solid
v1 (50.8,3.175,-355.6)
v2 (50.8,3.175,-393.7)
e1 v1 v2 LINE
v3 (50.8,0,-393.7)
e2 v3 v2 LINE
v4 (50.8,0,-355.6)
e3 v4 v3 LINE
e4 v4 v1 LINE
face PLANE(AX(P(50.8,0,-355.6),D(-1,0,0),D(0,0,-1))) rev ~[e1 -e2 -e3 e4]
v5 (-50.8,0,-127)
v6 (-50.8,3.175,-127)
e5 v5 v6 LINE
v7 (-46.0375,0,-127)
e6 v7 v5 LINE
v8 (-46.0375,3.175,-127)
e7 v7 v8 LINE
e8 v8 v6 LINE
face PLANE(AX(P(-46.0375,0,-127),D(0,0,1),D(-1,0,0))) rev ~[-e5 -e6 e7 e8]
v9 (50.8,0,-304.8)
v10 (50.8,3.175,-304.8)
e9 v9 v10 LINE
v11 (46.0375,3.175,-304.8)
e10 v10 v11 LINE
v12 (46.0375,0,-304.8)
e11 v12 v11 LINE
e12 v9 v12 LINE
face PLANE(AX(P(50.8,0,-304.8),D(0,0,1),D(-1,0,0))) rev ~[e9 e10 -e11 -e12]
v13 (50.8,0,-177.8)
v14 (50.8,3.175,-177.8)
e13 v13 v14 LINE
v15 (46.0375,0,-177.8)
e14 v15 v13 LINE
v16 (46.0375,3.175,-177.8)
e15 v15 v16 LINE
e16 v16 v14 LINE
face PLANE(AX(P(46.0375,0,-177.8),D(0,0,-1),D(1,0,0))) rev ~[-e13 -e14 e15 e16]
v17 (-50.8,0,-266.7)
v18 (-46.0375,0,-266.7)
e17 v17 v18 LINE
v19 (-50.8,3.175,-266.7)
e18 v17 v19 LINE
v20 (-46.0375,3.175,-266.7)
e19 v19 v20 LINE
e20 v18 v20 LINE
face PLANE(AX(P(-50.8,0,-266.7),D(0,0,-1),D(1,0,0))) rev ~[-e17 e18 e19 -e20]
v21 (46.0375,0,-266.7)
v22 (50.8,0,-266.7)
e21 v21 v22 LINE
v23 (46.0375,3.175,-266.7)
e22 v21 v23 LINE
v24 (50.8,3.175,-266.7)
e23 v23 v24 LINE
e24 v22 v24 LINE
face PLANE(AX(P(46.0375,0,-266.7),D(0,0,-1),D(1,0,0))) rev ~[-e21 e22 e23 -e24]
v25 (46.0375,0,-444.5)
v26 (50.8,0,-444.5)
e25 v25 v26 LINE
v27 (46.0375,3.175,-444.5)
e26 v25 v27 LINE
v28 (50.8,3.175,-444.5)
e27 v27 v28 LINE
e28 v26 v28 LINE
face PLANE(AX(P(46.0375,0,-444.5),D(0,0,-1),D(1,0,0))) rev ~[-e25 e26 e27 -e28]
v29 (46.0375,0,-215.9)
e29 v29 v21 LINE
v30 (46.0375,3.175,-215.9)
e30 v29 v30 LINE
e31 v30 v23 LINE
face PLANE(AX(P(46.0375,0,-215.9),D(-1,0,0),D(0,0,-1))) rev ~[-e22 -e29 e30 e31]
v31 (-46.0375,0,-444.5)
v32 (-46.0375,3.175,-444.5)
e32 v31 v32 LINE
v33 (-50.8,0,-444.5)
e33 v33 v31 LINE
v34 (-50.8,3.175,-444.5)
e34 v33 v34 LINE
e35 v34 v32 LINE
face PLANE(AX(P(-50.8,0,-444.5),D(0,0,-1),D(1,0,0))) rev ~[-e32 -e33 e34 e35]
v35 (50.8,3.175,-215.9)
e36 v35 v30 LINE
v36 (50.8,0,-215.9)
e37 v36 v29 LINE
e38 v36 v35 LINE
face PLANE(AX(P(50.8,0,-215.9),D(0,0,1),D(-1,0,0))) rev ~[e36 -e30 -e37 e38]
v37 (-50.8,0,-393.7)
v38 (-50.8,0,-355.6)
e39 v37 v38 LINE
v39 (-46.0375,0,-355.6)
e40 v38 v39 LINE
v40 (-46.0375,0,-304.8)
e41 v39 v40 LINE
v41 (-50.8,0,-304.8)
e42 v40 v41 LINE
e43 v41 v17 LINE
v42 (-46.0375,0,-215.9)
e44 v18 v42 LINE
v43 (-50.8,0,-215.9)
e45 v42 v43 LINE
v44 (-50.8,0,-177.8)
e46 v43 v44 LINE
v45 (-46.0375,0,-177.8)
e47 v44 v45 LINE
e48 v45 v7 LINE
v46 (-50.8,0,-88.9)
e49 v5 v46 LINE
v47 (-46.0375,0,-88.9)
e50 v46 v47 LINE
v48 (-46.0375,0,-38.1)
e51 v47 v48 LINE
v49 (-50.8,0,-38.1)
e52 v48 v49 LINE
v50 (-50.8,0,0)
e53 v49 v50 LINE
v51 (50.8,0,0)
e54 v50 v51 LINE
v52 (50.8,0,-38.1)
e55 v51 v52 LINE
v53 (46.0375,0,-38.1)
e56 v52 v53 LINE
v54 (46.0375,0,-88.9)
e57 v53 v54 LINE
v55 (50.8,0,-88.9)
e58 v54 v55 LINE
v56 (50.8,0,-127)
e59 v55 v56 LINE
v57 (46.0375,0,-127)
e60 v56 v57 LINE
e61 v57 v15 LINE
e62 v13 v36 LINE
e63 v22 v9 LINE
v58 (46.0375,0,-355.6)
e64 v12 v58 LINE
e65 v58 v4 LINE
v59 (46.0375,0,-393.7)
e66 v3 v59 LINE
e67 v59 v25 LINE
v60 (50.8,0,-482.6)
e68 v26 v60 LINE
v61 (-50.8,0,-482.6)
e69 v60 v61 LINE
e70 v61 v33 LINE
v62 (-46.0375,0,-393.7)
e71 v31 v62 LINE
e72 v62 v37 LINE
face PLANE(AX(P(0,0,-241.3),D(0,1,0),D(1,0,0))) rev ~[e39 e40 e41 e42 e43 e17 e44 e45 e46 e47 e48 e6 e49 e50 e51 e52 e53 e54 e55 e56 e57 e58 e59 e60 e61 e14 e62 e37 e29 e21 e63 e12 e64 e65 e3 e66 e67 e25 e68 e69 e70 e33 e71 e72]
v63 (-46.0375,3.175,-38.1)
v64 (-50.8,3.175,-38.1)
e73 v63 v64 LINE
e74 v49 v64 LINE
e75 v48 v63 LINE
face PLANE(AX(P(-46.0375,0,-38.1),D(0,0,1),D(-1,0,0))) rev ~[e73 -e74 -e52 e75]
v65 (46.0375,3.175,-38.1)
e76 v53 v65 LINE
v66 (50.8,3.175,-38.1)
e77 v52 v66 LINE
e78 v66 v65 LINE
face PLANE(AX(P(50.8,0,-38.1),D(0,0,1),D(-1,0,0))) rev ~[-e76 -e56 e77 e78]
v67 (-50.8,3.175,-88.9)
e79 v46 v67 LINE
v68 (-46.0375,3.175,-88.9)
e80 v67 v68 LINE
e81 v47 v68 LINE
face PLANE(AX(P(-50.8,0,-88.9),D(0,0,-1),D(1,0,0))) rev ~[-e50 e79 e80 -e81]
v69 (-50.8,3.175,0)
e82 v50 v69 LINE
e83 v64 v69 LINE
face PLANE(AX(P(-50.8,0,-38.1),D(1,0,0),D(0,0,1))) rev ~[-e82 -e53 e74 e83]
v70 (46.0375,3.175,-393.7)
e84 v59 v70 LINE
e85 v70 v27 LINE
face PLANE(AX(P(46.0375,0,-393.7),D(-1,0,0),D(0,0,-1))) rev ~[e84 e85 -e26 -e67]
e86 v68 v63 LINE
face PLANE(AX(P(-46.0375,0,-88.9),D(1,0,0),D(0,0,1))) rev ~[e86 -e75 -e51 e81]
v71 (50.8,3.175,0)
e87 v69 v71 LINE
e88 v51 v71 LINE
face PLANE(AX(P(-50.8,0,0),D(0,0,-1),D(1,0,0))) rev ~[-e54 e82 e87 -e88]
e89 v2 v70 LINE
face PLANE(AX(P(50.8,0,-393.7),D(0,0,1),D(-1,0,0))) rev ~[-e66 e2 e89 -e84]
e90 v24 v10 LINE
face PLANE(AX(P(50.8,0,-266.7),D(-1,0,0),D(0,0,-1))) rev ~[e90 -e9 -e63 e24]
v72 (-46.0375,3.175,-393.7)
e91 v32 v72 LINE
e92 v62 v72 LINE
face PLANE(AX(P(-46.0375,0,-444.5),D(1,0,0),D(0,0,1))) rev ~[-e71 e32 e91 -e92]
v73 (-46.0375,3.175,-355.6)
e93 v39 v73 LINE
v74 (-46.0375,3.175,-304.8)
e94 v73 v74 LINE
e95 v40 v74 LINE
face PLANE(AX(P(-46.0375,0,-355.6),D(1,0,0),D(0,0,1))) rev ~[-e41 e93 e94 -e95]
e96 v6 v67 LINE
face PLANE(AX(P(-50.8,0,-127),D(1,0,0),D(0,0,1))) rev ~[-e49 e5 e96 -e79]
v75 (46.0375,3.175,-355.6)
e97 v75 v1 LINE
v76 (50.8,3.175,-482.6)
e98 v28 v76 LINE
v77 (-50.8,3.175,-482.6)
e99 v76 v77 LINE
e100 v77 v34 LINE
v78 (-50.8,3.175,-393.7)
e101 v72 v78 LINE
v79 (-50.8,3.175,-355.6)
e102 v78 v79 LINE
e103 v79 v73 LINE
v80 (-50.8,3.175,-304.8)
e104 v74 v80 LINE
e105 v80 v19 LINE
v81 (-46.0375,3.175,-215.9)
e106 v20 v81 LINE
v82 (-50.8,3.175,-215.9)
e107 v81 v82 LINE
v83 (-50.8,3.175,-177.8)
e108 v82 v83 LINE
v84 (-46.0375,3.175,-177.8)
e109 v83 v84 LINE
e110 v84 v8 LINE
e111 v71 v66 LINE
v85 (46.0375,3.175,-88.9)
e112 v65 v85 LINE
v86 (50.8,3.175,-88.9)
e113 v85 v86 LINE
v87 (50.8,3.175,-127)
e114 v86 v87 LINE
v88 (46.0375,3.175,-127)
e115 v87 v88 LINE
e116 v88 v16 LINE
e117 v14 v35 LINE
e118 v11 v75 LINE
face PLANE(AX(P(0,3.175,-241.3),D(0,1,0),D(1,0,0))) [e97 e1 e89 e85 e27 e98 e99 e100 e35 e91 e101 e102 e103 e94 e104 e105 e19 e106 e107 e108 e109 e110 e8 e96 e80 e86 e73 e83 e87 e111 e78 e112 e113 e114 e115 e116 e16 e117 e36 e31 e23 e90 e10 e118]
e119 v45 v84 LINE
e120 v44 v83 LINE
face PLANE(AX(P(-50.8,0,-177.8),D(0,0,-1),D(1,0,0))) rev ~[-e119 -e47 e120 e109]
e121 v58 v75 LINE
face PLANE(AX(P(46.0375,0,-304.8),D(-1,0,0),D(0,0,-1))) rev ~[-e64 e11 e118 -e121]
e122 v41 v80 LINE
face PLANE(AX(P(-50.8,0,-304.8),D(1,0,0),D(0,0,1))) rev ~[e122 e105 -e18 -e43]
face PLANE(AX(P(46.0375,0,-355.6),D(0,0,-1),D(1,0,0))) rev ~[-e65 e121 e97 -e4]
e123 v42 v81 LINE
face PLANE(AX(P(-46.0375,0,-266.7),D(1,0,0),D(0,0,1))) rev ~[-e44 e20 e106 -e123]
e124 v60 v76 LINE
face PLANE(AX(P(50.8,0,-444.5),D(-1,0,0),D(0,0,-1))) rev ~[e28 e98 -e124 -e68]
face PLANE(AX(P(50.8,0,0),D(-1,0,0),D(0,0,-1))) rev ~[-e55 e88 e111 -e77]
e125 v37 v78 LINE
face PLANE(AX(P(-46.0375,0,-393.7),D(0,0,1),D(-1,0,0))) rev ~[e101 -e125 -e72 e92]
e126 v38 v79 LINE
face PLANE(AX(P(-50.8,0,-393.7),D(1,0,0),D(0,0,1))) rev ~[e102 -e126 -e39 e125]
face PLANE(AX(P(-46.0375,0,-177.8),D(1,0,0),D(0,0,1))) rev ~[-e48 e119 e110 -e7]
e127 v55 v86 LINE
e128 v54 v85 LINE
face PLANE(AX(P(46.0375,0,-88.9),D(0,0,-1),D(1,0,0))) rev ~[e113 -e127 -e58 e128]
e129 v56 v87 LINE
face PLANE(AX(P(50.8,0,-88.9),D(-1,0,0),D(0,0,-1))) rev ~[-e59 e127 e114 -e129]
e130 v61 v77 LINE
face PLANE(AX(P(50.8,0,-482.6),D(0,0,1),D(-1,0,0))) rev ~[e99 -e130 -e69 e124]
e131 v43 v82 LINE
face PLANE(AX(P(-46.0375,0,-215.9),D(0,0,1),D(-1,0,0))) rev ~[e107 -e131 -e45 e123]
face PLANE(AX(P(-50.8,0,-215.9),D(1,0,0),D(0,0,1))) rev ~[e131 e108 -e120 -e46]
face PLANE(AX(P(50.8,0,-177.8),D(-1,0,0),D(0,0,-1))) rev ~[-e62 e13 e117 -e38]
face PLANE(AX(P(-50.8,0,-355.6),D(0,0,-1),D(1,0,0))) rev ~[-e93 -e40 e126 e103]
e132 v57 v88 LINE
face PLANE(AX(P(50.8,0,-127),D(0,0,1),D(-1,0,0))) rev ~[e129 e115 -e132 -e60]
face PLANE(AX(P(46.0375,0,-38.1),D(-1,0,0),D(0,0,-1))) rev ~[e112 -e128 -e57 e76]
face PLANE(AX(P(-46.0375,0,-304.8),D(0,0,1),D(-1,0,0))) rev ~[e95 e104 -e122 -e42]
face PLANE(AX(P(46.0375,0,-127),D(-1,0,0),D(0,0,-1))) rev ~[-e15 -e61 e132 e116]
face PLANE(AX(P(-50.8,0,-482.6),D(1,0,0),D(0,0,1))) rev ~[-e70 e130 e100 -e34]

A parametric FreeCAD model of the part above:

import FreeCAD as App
import Part
import Sketcher
Q = App.Units.Quantity


def add_polygon(sketch, points):
    """Adds a closed chain of lines whose ends are joined by coincident constraints."""
    first, n = sketch.GeometryCount, len(points)
    for a, b in zip(points, points[1:] + points[:1]):
        sketch.addGeometry(Part.LineSegment(App.Vector(*a, 0), App.Vector(*b, 0)), False)
    for i in range(n):
        sketch.addConstraint(Sketcher.Constraint("Coincident", first + i, 2, first + (i + 1) % n, 1))

doc = App.newDocument("Part")
body = doc.addObject("PartDesign::Body", "Body")

sketch1 = body.newObject("Sketcher::SketchObject", "Sketch")
sketch1.AttachmentSupport = (doc.getObject("XZ_Plane"), [""])
sketch1.MapMode = "FlatFace"
add_polygon(sketch1, [(-50.8, 0), (50.8, 0), (50.8, -38.1), (46, -38.1), (46, -88.9), (50.8, -88.9), (50.8, -127), (46, -127), (46, -177.8), (50.8, -177.8), (50.8, -215.9), (46, -215.9), (46, -266.7), (50.8, -266.7), (50.8, -304.8), (46, -304.8), (46, -355.6), (50.8, -355.6), (50.8, -393.7), (46, -393.7), (46, -444.5), (50.8, -444.5), (50.8, -482.6), (-50.8, -482.6), (-50.8, -444.5), (-46, -444.5), (-46, -393.7), (-50.8, -393.7), (-50.8, -355.6), (-46, -355.6), (-46, -304.8), (-50.8, -304.8), (-50.8, -266.7), (-46, -266.7), (-46, -215.9), (-50.8, -215.9), (-50.8, -177.8), (-46, -177.8), (-46, -127), (-50.8, -127), (-50.8, -88.9), (-46, -88.9), (-46, -38.1), (-50.8, -38.1)])
sketch1.addConstraint([
    Sketcher.Constraint("Horizontal", 0),
    Sketcher.Constraint("Vertical", 1),
    Sketcher.Constraint("Horizontal", 2),
    Sketcher.Constraint("Vertical", 3),
    Sketcher.Constraint("Horizontal", 4),
    Sketcher.Constraint("Vertical", 5),
    Sketcher.Constraint("Horizontal", 6),
    Sketcher.Constraint("Vertical", 7),
    Sketcher.Constraint("Horizontal", 8),
    Sketcher.Constraint("Vertical", 9),
    Sketcher.Constraint("Horizontal", 10),
    Sketcher.Constraint("Vertical", 11),
    Sketcher.Constraint("Horizontal", 12),
    Sketcher.Constraint("Vertical", 13),
    Sketcher.Constraint("Horizontal", 14),
    Sketcher.Constraint("Vertical", 15),
    Sketcher.Constraint("Horizontal", 16),
    Sketcher.Constraint("Vertical", 17),
    Sketcher.Constraint("Horizontal", 18),
    Sketcher.Constraint("Vertical", 19),
    Sketcher.Constraint("Horizontal", 20),
    Sketcher.Constraint("Vertical", 21),
    Sketcher.Constraint("Horizontal", 22),
    Sketcher.Constraint("Vertical", 23),
    Sketcher.Constraint("Horizontal", 24),
    Sketcher.Constraint("Vertical", 25),
    Sketcher.Constraint("Horizontal", 26),
    Sketcher.Constraint("Vertical", 27),
    Sketcher.Constraint("Horizontal", 28),
    Sketcher.Constraint("Vertical", 29),
    Sketcher.Constraint("Horizontal", 30),
    Sketcher.Constraint("Vertical", 31),
    Sketcher.Constraint("Horizontal", 32),
    Sketcher.Constraint("Vertical", 33),
    Sketcher.Constraint("Horizontal", 34),
    Sketcher.Constraint("Vertical", 35),
    Sketcher.Constraint("Horizontal", 36),
    Sketcher.Constraint("Vertical", 37),
    Sketcher.Constraint("Horizontal", 38),
    Sketcher.Constraint("Vertical", 39),
    Sketcher.Constraint("Horizontal", 40),
    Sketcher.Constraint("Vertical", 41),
    Sketcher.Constraint("Horizontal", 42),
    Sketcher.Constraint("Vertical", 43),
    Sketcher.Constraint("Symmetric", 0, 2, 43, 2, -1, 1),
    Sketcher.Constraint("Symmetric", 20, 2, 23, 2, -2),
    Sketcher.Constraint("Symmetric", 18, 2, 25, 2, -2),
    Sketcher.Constraint("Symmetric", 16, 2, 27, 2, -2),
    Sketcher.Constraint("Symmetric", 14, 2, 29, 2, -2),
    Sketcher.Constraint("Symmetric", 12, 2, 31, 2, -2),
    Sketcher.Constraint("Symmetric", 10, 2, 33, 2, -2),
    Sketcher.Constraint("Symmetric", 8, 2, 35, 2, -2),
    Sketcher.Constraint("Symmetric", 6, 2, 37, 2, -2),
    Sketcher.Constraint("Symmetric", 4, 2, 39, 2, -2),
    Sketcher.Constraint("Symmetric", 2, 2, 41, 2, -2),
    Sketcher.Constraint("Vertical", 1, 2, 4, 2),
    Sketcher.Constraint("Vertical", 3, 2, 6, 2),
    Sketcher.Constraint("Vertical", 5, 2, 8, 2),
    Sketcher.Constraint("Vertical", 7, 2, 10, 2),
    Sketcher.Constraint("Vertical", 9, 2, 12, 2),
    Sketcher.Constraint("Vertical", 11, 2, 14, 2),
    Sketcher.Constraint("Vertical", 13, 2, 16, 2),
    Sketcher.Constraint("Vertical", 15, 2, 18, 2),
    Sketcher.Constraint("Vertical", 17, 2, 20, 2),
    Sketcher.Constraint("Equal", 1, 5),
    Sketcher.Constraint("Equal", 3, 7),
    Sketcher.Constraint("Equal", 5, 9),
    Sketcher.Constraint("Equal", 7, 11),
    Sketcher.Constraint("Equal", 9, 13),
    Sketcher.Constraint("Equal", 11, 15),
    Sketcher.Constraint("Equal", 13, 17),
    Sketcher.Constraint("Equal", 15, 19),
    Sketcher.Constraint("Equal", 17, 21),
    Sketcher.Constraint("DistanceX", 0, 1, 0, 2, Q("4 in")),
    Sketcher.Constraint("DistanceY", 3, 2, 3, 1, Q("2 in")),
    Sketcher.Constraint("DistanceY", 1, 2, 1, 1, Q("1.5 in")),
    Sketcher.Constraint("DistanceX", 2, 2, 2, 1, Q("0.1875 in")),
])
pad1 = body.newObject("PartDesign::Pad", "Pad")
pad1.Profile = sketch1
pad1.Length = Q("0.125 in")
pad1.Reversed = True

doc.recompute()
